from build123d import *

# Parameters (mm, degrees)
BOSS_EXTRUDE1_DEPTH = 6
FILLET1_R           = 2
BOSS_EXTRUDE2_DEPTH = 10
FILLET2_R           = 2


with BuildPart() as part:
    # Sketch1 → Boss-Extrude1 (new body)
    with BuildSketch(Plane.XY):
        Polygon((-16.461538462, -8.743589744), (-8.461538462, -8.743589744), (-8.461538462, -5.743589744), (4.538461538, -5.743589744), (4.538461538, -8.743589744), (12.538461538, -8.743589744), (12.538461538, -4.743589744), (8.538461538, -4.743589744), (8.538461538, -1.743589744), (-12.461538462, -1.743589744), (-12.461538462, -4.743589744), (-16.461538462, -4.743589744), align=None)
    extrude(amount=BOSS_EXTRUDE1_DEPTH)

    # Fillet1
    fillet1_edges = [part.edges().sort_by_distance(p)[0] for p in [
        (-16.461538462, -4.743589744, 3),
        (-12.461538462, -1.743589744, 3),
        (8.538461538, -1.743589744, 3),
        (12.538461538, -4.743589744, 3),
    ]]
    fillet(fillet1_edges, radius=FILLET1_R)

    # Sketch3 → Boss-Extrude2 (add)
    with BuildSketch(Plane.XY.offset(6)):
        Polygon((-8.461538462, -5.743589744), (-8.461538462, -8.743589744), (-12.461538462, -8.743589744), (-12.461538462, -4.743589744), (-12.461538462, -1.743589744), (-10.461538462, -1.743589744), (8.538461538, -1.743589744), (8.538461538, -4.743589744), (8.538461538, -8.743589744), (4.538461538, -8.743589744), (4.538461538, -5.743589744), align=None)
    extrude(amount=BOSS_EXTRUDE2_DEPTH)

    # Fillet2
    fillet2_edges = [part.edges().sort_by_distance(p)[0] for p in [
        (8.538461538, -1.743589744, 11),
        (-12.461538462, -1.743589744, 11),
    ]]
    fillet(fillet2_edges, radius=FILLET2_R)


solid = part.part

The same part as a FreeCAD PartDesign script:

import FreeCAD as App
import Part
import Sketcher
from FreeCAD import Vector
Q = App.Units.Quantity


def edges_at(feature, points):
    """Names of the edges that pass closest to the given points."""
    edges = feature.Shape.Edges
    near = lambda p: min(range(len(edges)), key=lambda i: edges[i].distToShape(Part.Vertex(*p))[0])
    return sorted({f"Edge{near(p) + 1}" for p in points})

doc = App.newDocument("Part")
params = doc.addObject("Spreadsheet::Sheet", "Params")
for row, (alias, value) in enumerate([
    ("sketch1_width", "8 mm"),
    ("sketch1_width2", "13 mm"),
    ("sketch1_width3", "4 mm"),
    ("sketch1_height", "3 mm"),
    ("pad1_length", "6 mm"),
    ("fillet_radius", "2 mm"),
    ("sketch2_width", "13 mm"),
    ("sketch2_width2", "4 mm"),
    ("sketch2_height", "3 mm"),
    ("sketch2_height2", "7 mm"),
    ("pad2_length", "10 mm"),
    ("fillet2_radius", "2 mm"),
], start=1):
    params.set(f"A{row}", alias)
    params.set(f"B{row}", "=" + value)
    params.setAlias(f"B{row}", alias)

body = doc.addObject("PartDesign::Body", "Body")

sketch1 = body.newObject("Sketcher::SketchObject", "Sketch")
sketch1.AttachmentSupport = (doc.getObject("XY_Plane"), [""])
sketch1.MapMode = "FlatFace"
sketch1.addGeometry(Part.LineSegment(Vector(-16.5, -8.7, 0), Vector(-8.5, -8.7, 0)), False)
sketch1.addGeometry(Part.LineSegment(Vector(-8.5, -8.7, 0), Vector(-8.5, -5.7, 0)), False)
sketch1.addGeometry(Part.LineSegment(Vector(-8.5, -5.7, 0), Vector(4.5, -5.7, 0)), False)
sketch1.addGeometry(Part.LineSegment(Vector(4.5, -5.7, 0), Vector(4.5, -8.7, 0)), False)
sketch1.addGeometry(Part.LineSegment(Vector(4.5, -8.7, 0), Vector(12.5, -8.7, 0)), False)
sketch1.addGeometry(Part.LineSegment(Vector(12.5, -8.7, 0), Vector(12.5, -4.7, 0)), False)
sketch1.addGeometry(Part.LineSegment(Vector(12.5, -4.7, 0), Vector(8.5, -4.7, 0)), False)
sketch1.addGeometry(Part.LineSegment(Vector(8.5, -4.7, 0), Vector(8.5, -1.7, 0)), False)
sketch1.addGeometry(Part.LineSegment(Vector(8.5, -1.7, 0), Vector(-12.5, -1.7, 0)), False)
sketch1.addGeometry(Part.LineSegment(Vector(-12.5, -1.7, 0), Vector(-12.5, -4.7, 0)), False)
sketch1.addGeometry(Part.LineSegment(Vector(-12.5, -4.7, 0), Vector(-16.5, -4.7, 0)), False)
sketch1.addGeometry(Part.LineSegment(Vector(-16.5, -4.7, 0), Vector(-16.5, -8.7, 0)), False)
sketch1.addConstraint(Sketcher.Constraint("Coincident", 0, 2, 1, 1))
sketch1.addConstraint(Sketcher.Constraint("Coincident", 1, 2, 2, 1))
sketch1.addConstraint(Sketcher.Constraint("Coincident", 2, 2, 3, 1))
sketch1.addConstraint(Sketcher.Constraint("Coincident", 3, 2, 4, 1))
sketch1.addConstraint(Sketcher.Constraint("Coincident", 4, 2, 5, 1))
sketch1.addConstraint(Sketcher.Constraint("Coincident", 5, 2, 6, 1))
sketch1.addConstraint(Sketcher.Constraint("Coincident", 6, 2, 7, 1))
sketch1.addConstraint(Sketcher.Constraint("Coincident", 7, 2, 8, 1))
sketch1.addConstraint(Sketcher.Constraint("Coincident", 8, 2, 9, 1))
sketch1.addConstraint(Sketcher.Constraint("Coincident", 9, 2, 10, 1))
sketch1.addConstraint(Sketcher.Constraint("Coincident", 10, 2, 11, 1))
sketch1.addConstraint(Sketcher.Constraint("Coincident", 11, 2, 0, 1))
sketch1.addConstraint(Sketcher.Constraint("Horizontal", 0))
sketch1.addConstraint(Sketcher.Constraint("Vertical", 1))
sketch1.addConstraint(Sketcher.Constraint("Horizontal", 2))
sketch1.addConstraint(Sketcher.Constraint("Vertical", 3))
sketch1.addConstraint(Sketcher.Constraint("Horizontal", 4))
sketch1.addConstraint(Sketcher.Constraint("Vertical", 5))
sketch1.addConstraint(Sketcher.Constraint("Horizontal", 6))
sketch1.addConstraint(Sketcher.Constraint("Vertical", 7))
sketch1.addConstraint(Sketcher.Constraint("Horizontal", 8))
sketch1.addConstraint(Sketcher.Constraint("Vertical", 9))
sketch1.addConstraint(Sketcher.Constraint("Horizontal", 10))
sketch1.addConstraint(Sketcher.Constraint("Vertical", 11))
sketch1.addConstraint(Sketcher.Constraint("Horizontal", 0, 2, 3, 2))
sketch1.addConstraint(Sketcher.Constraint("Horizontal", 6, 2, 9, 2))
sketch1.addConstraint(Sketcher.Constraint("Equal", 0, 4))
sketch1.addConstraint(Sketcher.Constraint("Equal", 6, 10))
sketch1.addConstraint(Sketcher.Constraint("Equal", 10, 5))
sketch1.addConstraint(Sketcher.Constraint("Equal", 3, 7))
sketch1.addConstraint(Sketcher.Constraint("DistanceX", 0, 1, 0, 2, Q("8 mm")))
sketch1.addConstraint(Sketcher.Constraint("DistanceX", 2, 1, 2, 2, Q("13 mm")))
sketch1.addConstraint(Sketcher.Constraint("DistanceX", 6, 2, 6, 1, Q("4 mm")))
sketch1.addConstraint(Sketcher.Constraint("DistanceY", 1, 1, 1, 2, Q("3 mm")))
sketch1.addConstraint(Sketcher.Constraint("DistanceX", 0, 2, -1, 1, Q("8.461538 mm")))
sketch1.addConstraint(Sketcher.Constraint("DistanceY", 0, 2, -1, 1, Q("8.74359 mm")))
sketch1.setExpression("Constraints[30]", "Params.sketch1_width")
sketch1.setExpression("Constraints[31]", "Params.sketch1_width2")
sketch1.setExpression("Constraints[32]", "Params.sketch1_width3")
sketch1.setExpression("Constraints[33]", "Params.sketch1_height")
pad1 = body.newObject("PartDesign::Pad", "Pad")
pad1.Profile = sketch1
pad1.setExpression("Length", "Params.pad1_length")
doc.recompute()

fillet = body.newObject("PartDesign::Fillet", "Fillet")
fillet.Base = (pad1, edges_at(pad1, [
    (-16.462, -4.744, 3),
    (-12.462, -1.744, 3),
    (8.538, -1.744, 3),
    (12.538, -4.744, 3),
]))
fillet.setExpression("Radius", "Params.fillet_radius")

sketch2 = body.newObject("Sketcher::SketchObject", "Sketch001")
sketch2.AttachmentSupport = (doc.getObject("XY_Plane"), [""])
sketch2.MapMode = "FlatFace"
sketch2.AttachmentOffset = App.Placement(Vector(0, 0, 6), App.Rotation())
sketch2.addGeometry(Part.LineSegment(Vector(-8.5, -8.7, 0), Vector(-8.5, -5.7, 0)), False)
sketch2.addGeometry(Part.LineSegment(Vector(-8.5, -5.7, 0), Vector(4.5, -5.7, 0)), False)
sketch2.addGeometry(Part.LineSegment(Vector(4.5, -5.7, 0), Vector(4.5, -8.7, 0)), False)
sketch2.addGeometry(Part.LineSegment(Vector(4.5, -8.7, 0), Vector(8.5, -8.7, 0)), False)
sketch2.addGeometry(Part.LineSegment(Vector(8.5, -8.7, 0), Vector(8.5, -1.7, 0)), False)
sketch2.addGeometry(Part.LineSegment(Vector(8.5, -1.7, 0), Vector(-12.5, -1.7, 0)), False)
sketch2.addGeometry(Part.LineSegment(Vector(-12.5, -1.7, 0), Vector(-12.5, -8.7, 0)), False)
sketch2.addGeometry(Part.LineSegment(Vector(-12.5, -8.7, 0), Vector(-8.5, -8.7, 0)), False)
sketch2.addConstraint(Sketcher.Constraint("Coincident", 0, 2, 1, 1))
sketch2.addConstraint(Sketcher.Constraint("Coincident", 1, 2, 2, 1))
sketch2.addConstraint(Sketcher.Constraint("Coincident", 2, 2, 3, 1))
sketch2.addConstraint(Sketcher.Constraint("Coincident", 3, 2, 4, 1))
sketch2.addConstraint(Sketcher.Constraint("Coincident", 4, 2, 5, 1))
sketch2.addConstraint(Sketcher.Constraint("Coincident", 5, 2, 6, 1))
sketch2.addConstraint(Sketcher.Constraint("Coincident", 6, 2, 7, 1))
sketch2.addConstraint(Sketcher.Constraint("Coincident", 7, 2, 0, 1))
sketch2.addConstraint(Sketcher.Constraint("Vertical", 0))
sketch2.addConstraint(Sketcher.Constraint("Horizontal", 1))
sketch2.addConstraint(Sketcher.Constraint("Vertical", 2))
sketch2.addConstraint(Sketcher.Constraint("Horizontal", 3))
sketch2.addConstraint(Sketcher.Constraint("Vertical", 4))
sketch2.addConstraint(Sketcher.Constraint("Horizontal", 5))
sketch2.addConstraint(Sketcher.Constraint("Vertical", 6))
sketch2.addConstraint(Sketcher.Constraint("Horizontal", 7))
sketch2.addConstraint(Sketcher.Constraint("Horizontal", 3, 2, 6, 2))
sketch2.addConstraint(Sketcher.Constraint("Equal", 3, 7))
sketch2.addConstraint(Sketcher.Constraint("DistanceX", 1, 1, 1, 2, Q("13 mm")))
sketch2.addConstraint(Sketcher.Constraint("DistanceX", 3, 1, 3, 2, Q("4 mm")))
sketch2.addConstraint(Sketcher.Constraint("DistanceY", 0, 1, 0, 2, Q("3 mm")))
sketch2.addConstraint(Sketcher.Constraint("DistanceY", 4, 1, 4, 2, Q("7 mm")))
sketch2.addConstraint(Sketcher.Constraint("DistanceX", 0, 2, -1, 1, Q("8.461538 mm")))
sketch2.addConstraint(Sketcher.Constraint("DistanceY", 0, 2, -1, 1, Q("5.74359 mm")))
sketch2.setExpression("Constraints[18]", "Params.sketch2_width")
sketch2.setExpression("Constraints[19]", "Params.sketch2_width2")
sketch2.setExpression("Constraints[20]", "Params.sketch2_height")
sketch2.setExpression("Constraints[21]", "Params.sketch2_height2")
pad2 = body.newObject("PartDesign::Pad", "Pad001")
pad2.Profile = sketch2
pad2.setExpression("Length", "Params.pad2_length")
doc.recompute()

fillet2 = body.newObject("PartDesign::Fillet", "Fillet001")
fillet2.Base = (pad2, edges_at(pad2, [(8.538, -1.744, 11), (-12.462, -1.744, 11)]))
fillet2.setExpression("Radius", "Params.fillet2_radius")

doc.recompute()
